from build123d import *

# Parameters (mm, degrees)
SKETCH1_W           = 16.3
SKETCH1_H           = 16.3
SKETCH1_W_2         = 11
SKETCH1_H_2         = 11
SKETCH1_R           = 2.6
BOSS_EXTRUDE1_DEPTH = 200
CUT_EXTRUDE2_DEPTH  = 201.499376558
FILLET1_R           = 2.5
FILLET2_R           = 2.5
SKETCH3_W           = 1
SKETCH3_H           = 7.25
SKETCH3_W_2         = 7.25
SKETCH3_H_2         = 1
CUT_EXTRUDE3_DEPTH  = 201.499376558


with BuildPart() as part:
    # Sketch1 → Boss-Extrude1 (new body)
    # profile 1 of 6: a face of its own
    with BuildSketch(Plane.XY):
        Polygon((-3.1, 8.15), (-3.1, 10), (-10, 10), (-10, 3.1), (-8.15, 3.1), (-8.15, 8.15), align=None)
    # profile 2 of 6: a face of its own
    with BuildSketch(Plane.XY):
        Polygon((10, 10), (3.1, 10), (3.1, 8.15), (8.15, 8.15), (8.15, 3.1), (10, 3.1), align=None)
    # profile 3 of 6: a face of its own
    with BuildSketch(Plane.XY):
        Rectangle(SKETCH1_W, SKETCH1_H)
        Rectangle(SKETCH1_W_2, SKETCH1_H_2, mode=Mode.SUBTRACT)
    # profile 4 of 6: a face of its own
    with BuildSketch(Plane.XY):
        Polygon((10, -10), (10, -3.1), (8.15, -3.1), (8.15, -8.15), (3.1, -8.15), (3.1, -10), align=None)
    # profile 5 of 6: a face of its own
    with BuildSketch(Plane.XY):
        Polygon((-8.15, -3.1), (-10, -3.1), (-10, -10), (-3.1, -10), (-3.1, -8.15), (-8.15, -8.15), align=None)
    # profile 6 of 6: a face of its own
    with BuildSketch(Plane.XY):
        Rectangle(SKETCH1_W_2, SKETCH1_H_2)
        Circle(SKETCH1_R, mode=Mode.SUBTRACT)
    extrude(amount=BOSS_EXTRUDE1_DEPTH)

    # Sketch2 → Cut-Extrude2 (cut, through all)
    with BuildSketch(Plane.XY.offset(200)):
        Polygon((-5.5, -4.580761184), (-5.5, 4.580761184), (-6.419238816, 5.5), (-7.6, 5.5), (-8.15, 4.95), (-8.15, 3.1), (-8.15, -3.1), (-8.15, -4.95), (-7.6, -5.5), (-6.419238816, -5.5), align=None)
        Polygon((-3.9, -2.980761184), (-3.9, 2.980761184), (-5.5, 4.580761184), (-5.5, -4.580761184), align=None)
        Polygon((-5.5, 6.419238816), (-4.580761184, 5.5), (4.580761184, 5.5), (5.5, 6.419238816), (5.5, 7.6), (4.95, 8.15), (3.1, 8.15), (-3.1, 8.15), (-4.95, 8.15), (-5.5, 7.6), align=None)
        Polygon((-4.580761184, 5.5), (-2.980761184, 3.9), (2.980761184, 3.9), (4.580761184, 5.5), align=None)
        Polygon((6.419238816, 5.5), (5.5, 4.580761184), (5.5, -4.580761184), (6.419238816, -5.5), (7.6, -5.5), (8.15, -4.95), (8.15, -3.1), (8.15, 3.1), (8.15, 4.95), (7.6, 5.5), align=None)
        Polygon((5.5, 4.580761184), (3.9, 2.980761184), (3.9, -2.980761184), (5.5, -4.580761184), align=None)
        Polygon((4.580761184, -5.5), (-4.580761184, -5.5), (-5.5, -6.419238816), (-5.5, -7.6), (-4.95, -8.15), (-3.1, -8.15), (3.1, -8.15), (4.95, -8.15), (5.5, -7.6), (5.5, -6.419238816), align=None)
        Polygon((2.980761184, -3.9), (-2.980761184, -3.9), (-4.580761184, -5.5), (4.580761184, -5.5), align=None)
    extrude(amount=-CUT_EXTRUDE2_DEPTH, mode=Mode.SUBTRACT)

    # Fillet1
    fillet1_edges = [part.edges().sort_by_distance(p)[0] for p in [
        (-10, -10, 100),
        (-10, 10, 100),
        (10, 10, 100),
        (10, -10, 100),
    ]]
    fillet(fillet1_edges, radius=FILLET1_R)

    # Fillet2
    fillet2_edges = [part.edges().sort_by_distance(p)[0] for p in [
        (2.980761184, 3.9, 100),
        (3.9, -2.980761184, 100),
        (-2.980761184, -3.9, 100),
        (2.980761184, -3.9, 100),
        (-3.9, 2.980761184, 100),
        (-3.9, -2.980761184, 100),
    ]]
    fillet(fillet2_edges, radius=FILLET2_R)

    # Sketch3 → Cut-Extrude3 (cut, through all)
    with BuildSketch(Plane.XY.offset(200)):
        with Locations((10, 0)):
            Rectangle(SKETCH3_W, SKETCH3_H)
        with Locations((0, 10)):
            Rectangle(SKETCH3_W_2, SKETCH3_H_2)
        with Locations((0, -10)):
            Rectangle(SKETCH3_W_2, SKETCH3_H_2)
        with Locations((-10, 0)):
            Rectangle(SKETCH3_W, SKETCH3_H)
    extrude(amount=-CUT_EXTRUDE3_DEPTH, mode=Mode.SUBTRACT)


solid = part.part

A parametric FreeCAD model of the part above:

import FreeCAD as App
import Part
import Sketcher
from FreeCAD import Vector


def edges_at(feature, points):
    """Names of the edges that pass closest to the given points."""
    edges = feature.Shape.Edges
    near = lambda p: min(range(len(edges)), key=lambda i: edges[i].distToShape(Part.Vertex(*p))[0])
    return sorted({f"Edge{near(p) + 1}" for p in points})

doc = App.newDocument("Part")
body = doc.addObject("PartDesign::Body", "Body")

# Sketch on XY plane
sketch1 = body.newObject("Sketcher::SketchObject", "Sketch")
sketch1.AttachmentSupport = (doc.getObject("XY_Plane"), [""])
sketch1.MapMode = "FlatFace"
sketch1.addGeometry([
    Part.LineSegment(Vector(-3.1, 8.2, 0), Vector(-3.1, 10, 0)),  # 0
    Part.LineSegment(Vector(-3.1, 10, 0), Vector(-10, 10, 0)),  # 1
    Part.LineSegment(Vector(-10, 10, 0), Vector(-10, 3.1, 0)),  # 2
    Part.LineSegment(Vector(-10, 3.1, 0), Vector(-8.2, 3.1, 0)),  # 3
    Part.LineSegment(Vector(-8.2, 3.1, 0), Vector(-8.2, -3.1, 0)),  # 4
    Part.LineSegment(Vector(-8.2, -3.1, 0), Vector(-10, -3.1, 0)),  # 5
    Part.LineSegment(Vector(-10, -3.1, 0), Vector(-10, -10, 0)),  # 6
    Part.LineSegment(Vector(-10, -10, 0), Vector(-3.1, -10, 0)),  # 7
    Part.LineSegment(Vector(-3.1, -10, 0), Vector(-3.1, -8.2, 0)),  # 8
    Part.LineSegment(Vector(-3.1, -8.2, 0), Vector(3.1, -8.2, 0)),  # 9
    Part.LineSegment(Vector(3.1, -8.2, 0), Vector(3.1, -10, 0)),  # 10
    Part.LineSegment(Vector(3.1, -10, 0), Vector(10, -10, 0)),  # 11
    Part.LineSegment(Vector(10, -10, 0), Vector(10, -3.1, 0)),  # 12
    Part.LineSegment(Vector(10, -3.1, 0), Vector(8.2, -3.1, 0)),  # 13
    Part.LineSegment(Vector(8.2, -3.1, 0), Vector(8.2, 3.1, 0)),  # 14
    Part.LineSegment(Vector(8.2, 3.1, 0), Vector(10, 3.1, 0)),  # 15
    Part.LineSegment(Vector(10, 3.1, 0), Vector(10, 10, 0)),  # 16
    Part.LineSegment(Vector(10, 10, 0), Vector(3.1, 10, 0)),  # 17
    Part.LineSegment(Vector(3.1, 10, 0), Vector(3.1, 8.2, 0)),  # 18
    Part.LineSegment(Vector(3.1, 8.2, 0), Vector(-3.1, 8.2, 0)),  # 19
    Part.Circle(Vector(0, 0, 0), Vector(0, 0, 1), 2.6),  # 20
], False)
sketch1.addConstraint([
    Sketcher.Constraint("Coincident", 0, 2, 1, 1),
    Sketcher.Constraint("Coincident", 1, 2, 2, 1),
    Sketcher.Constraint("Coincident", 2, 2, 3, 1),
    Sketcher.Constraint("Coincident", 3, 2, 4, 1),
    Sketcher.Constraint("Coincident", 4, 2, 5, 1),
    Sketcher.Constraint("Coincident", 5, 2, 6, 1),
    Sketcher.Constraint("Coincident", 6, 2, 7, 1),
    Sketcher.Constraint("Coincident", 7, 2, 8, 1),
    Sketcher.Constraint("Coincident", 8, 2, 9, 1),
    Sketcher.Constraint("Coincident", 9, 2, 10, 1),
    Sketcher.Constraint("Coincident", 10, 2, 11, 1),
    Sketcher.Constraint("Coincident", 11, 2, 12, 1),
    Sketcher.Constraint("Coincident", 12, 2, 13, 1),
    Sketcher.Constraint("Coincident", 13, 2, 14, 1),
    Sketcher.Constraint("Coincident", 14, 2, 15, 1),
    Sketcher.Constraint("Coincident", 15, 2, 16, 1),
    Sketcher.Constraint("Coincident", 16, 2, 17, 1),
    Sketcher.Constraint("Coincident", 17, 2, 18, 1),
    Sketcher.Constraint("Coincident", 18, 2, 19, 1),
    Sketcher.Constraint("Coincident", 19, 2, 0, 1),
    Sketcher.Constraint("Vertical", 0),
    Sketcher.Constraint("Horizontal", 1),
    Sketcher.Constraint("Vertical", 2),
    Sketcher.Constraint("Horizontal", 3),
    Sketcher.Constraint("Vertical", 4),
    Sketcher.Constraint("Horizontal", 5),
    Sketcher.Constraint("Vertical", 6),
    Sketcher.Constraint("Horizontal", 7),
    Sketcher.Constraint("Vertical", 8),
    Sketcher.Constraint("Horizontal", 9),
    Sketcher.Constraint("Vertical", 10),
    Sketcher.Constraint("Horizontal", 11),
    Sketcher.Constraint("Vertical", 12),
    Sketcher.Constraint("Horizontal", 13),
    Sketcher.Constraint("Vertical", 14),
    Sketcher.Constraint("Horizontal", 15),
    Sketcher.Constraint("Vertical", 16),
    Sketcher.Constraint("Horizontal", 17),
    Sketcher.Constraint("Vertical", 18),
    Sketcher.Constraint("Horizontal", 19),
    Sketcher.Constraint("Coincident", 20, 3, -1, 1),
    Sketcher.Constraint("Symmetric", 0, 2, 10, 2, -1, 1),
    Sketcher.Constraint("Symmetric", 2, 2, 12, 2, -1, 1),
    Sketcher.Constraint("Symmetric", 4, 2, 14, 2, -1, 1),
    Sketcher.Constraint("Symmetric", 6, 2, 16, 2, -1, 1),
    Sketcher.Constraint("Symmetric", 8, 2, 18, 2, -1, 1),
    Sketcher.Constraint("Symmetric", 7, 2, 10, 2, -2),
    Sketcher.Constraint("Symmetric", 5, 2, 12, 2, -2),
    Sketcher.Constraint("Equal", 15, 0),
    Sketcher.Constraint("Equal", 17, 2),
    Sketcher.Constraint("Equal", 19, 4),
    Sketcher.Constraint("Diameter", 20, 5.2),
    Sketcher.Constraint("DistanceX", 1, 2, 1, 1, 6.9),
    Sketcher.Constraint("DistanceX", 9, 1, 9, 2, 6.2),
    Sketcher.Constraint("DistanceX", 3, 1, 3, 2, 1.85),
])
pad1 = body.newObject("PartDesign::Pad", "Pad")
pad1.Profile = sketch1
pad1.Length = 200

# Sketch on XY plane
sketch2 = body.newObject("Sketcher::SketchObject", "Sketch001")
sketch2.AttachmentSupport = (doc.getObject("XY_Plane"), [""])
sketch2.MapMode = "FlatFace"
sketch2.AttachmentOffset = App.Placement(Vector(0, 0, 200), App.Rotation())
sketch2.addGeometry([
    Part.LineSegment(Vector(-6.4, 5.5, 0), Vector(-7.6, 5.5, 0)),  # 0
    Part.LineSegment(Vector(-7.6, 5.5, 0), Vector(-8.2, 5, 0)),  # 1
    Part.LineSegment(Vector(-8.2, 5, 0), Vector(-8.2, -5, 0)),  # 2
    Part.LineSegment(Vector(-8.2, -5, 0), Vector(-7.6, -5.5, 0)),  # 3
    Part.LineSegment(Vector(-7.6, -5.5, 0), Vector(-6.4, -5.5, 0)),  # 4
    Part.LineSegment(Vector(-6.4, -5.5, 0), Vector(-3.9, -3, 0)),  # 5
    Part.LineSegment(Vector(-3.9, -3, 0), Vector(-3.9, 3, 0)),  # 6
    Part.LineSegment(Vector(-3.9, 3, 0), Vector(-6.4, 5.5, 0)),  # 7
    Part.LineSegment(Vector(-5.5, 6.4, 0), Vector(-3, 3.9, 0)),  # 8
    Part.LineSegment(Vector(-3, 3.9, 0), Vector(3, 3.9, 0)),  # 9
    Part.LineSegment(Vector(3, 3.9, 0), Vector(5.5, 6.4, 0)),  # 10
    Part.LineSegment(Vector(5.5, 6.4, 0), Vector(5.5, 7.6, 0)),  # 11
    Part.LineSegment(Vector(5.5, 7.6, 0), Vector(5, 8.2, 0)),  # 12
    Part.LineSegment(Vector(5, 8.2, 0), Vector(-5, 8.2, 0)),  # 13
    Part.LineSegment(Vector(-5, 8.2, 0), Vector(-5.5, 7.6, 0)),  # 14
    Part.LineSegment(Vector(-5.5, 7.6, 0), Vector(-5.5, 6.4, 0)),  # 15
    Part.LineSegment(Vector(6.4, 5.5, 0), Vector(3.9, 3, 0)),  # 16
    Part.LineSegment(Vector(3.9, 3, 0), Vector(3.9, -3, 0)),  # 17
    Part.LineSegment(Vector(3.9, -3, 0), Vector(6.4, -5.5, 0)),  # 18
    Part.LineSegment(Vector(6.4, -5.5, 0), Vector(7.6, -5.5, 0)),  # 19
    Part.LineSegment(Vector(7.6, -5.5, 0), Vector(8.2, -5, 0)),  # 20
    Part.LineSegment(Vector(8.2, -5, 0), Vector(8.2, 5, 0)),  # 21
    Part.LineSegment(Vector(8.2, 5, 0), Vector(7.6, 5.5, 0)),  # 22
    Part.LineSegment(Vector(7.6, 5.5, 0), Vector(6.4, 5.5, 0)),  # 23
    Part.LineSegment(Vector(-5.5, -6.4, 0), Vector(-5.5, -7.6, 0)),  # 24
    Part.LineSegment(Vector(-5.5, -7.6, 0), Vector(-5, -8.2, 0)),  # 25
    Part.LineSegment(Vector(-5, -8.2, 0), Vector(5, -8.2, 0)),  # 26
    Part.LineSegment(Vector(5, -8.2, 0), Vector(5.5, -7.6, 0)),  # 27
    Part.LineSegment(Vector(5.5, -7.6, 0), Vector(5.5, -6.4, 0)),  # 28
    Part.LineSegment(Vector(5.5, -6.4, 0), Vector(3, -3.9, 0)),  # 29
    Part.LineSegment(Vector(3, -3.9, 0), Vector(-3, -3.9, 0)),  # 30
    Part.LineSegment(Vector(-3, -3.9, 0), Vector(-5.5, -6.4, 0)),  # 31
], False)
sketch2.addConstraint([
    Sketcher.Constraint("Coincident", 0, 2, 1, 1),
    Sketcher.Constraint("Coincident", 1, 2, 2, 1),
    Sketcher.Constraint("Coincident", 2, 2, 3, 1),
    Sketcher.Constraint("Coincident", 3, 2, 4, 1),
    Sketcher.Constraint("Coincident", 4, 2, 5, 1),
    Sketcher.Constraint("Coincident", 5, 2, 6, 1),
    Sketcher.Constraint("Coincident", 6, 2, 7, 1),
    Sketcher.Constraint("Coincident", 7, 2, 0, 1),
    Sketcher.Constraint("Coincident", 8, 2, 9, 1),
    Sketcher.Constraint("Coincident", 9, 2, 10, 1),
    Sketcher.Constraint("Coincident", 10, 2, 11, 1),
    Sketcher.Constraint("Coincident", 11, 2, 12, 1),
    Sketcher.Constraint("Coincident", 12, 2, 13, 1),
    Sketcher.Constraint("Coincident", 13, 2, 14, 1),
    Sketcher.Constraint("Coincident", 14, 2, 15, 1),
    Sketcher.Constraint("Coincident", 15, 2, 8, 1),
    Sketcher.Constraint("Coincident", 16, 2, 17, 1),
    Sketcher.Constraint("Coincident", 17, 2, 18, 1),
    Sketcher.Constraint("Coincident", 18, 2, 19, 1),
    Sketcher.Constraint("Coincident", 19, 2, 20, 1),
    Sketcher.Constraint("Coincident", 20, 2, 21, 1),
    Sketcher.Constraint("Coincident", 21, 2, 22, 1),
    Sketcher.Constraint("Coincident", 22, 2, 23, 1),
    Sketcher.Constraint("Coincident", 23, 2, 16, 1),
    Sketcher.Constraint("Coincident", 24, 2, 25, 1),
    Sketcher.Constraint("Coincident", 25, 2, 26, 1),
    Sketcher.Constraint("Coincident", 26, 2, 27, 1),
    Sketcher.Constraint("Coincident", 27, 2, 28, 1),
    Sketcher.Constraint("Coincident", 28, 2, 29, 1),
    Sketcher.Constraint("Coincident", 29, 2, 30, 1),
    Sketcher.Constraint("Coincident", 30, 2, 31, 1),
    Sketcher.Constraint("Coincident", 31, 2, 24, 1),
    Sketcher.Constraint("Horizontal", 0),
    Sketcher.Constraint("Vertical", 2),
    Sketcher.Constraint("Horizontal", 4),
    Sketcher.Constraint("Vertical", 6),
    Sketcher.Constraint("Horizontal", 9),
    Sketcher.Constraint("Vertical", 11),
    Sketcher.Constraint("Horizontal", 13),
    Sketcher.Constraint("Vertical", 15),
    Sketcher.Constraint("Vertical", 17),
    Sketcher.Constraint("Horizontal", 19),
    Sketcher.Constraint("Vertical", 21),
    Sketcher.Constraint("Horizontal", 23),
    Sketcher.Constraint("Vertical", 24),
    Sketcher.Constraint("Horizontal", 26),
    Sketcher.Constraint("Vertical", 28),
    Sketcher.Constraint("Horizontal", 30),
    Sketcher.Constraint("Symmetric", 5, 2, 16, 2, -1, 1),
    Sketcher.Constraint("Symmetric", 7, 2, 18, 2, -1, 1),
    Sketcher.Constraint("Symmetric", 1, 2, 20, 2, -1, 1),
    Sketcher.Constraint("Symmetric", 3, 2, 22, 2, -1, 1),
    Sketcher.Constraint("Symmetric", 11, 2, 24, 2, -1, 1),
    Sketcher.Constraint("Symmetric", 12, 2, 25, 2, -1, 1),
    Sketcher.Constraint("Symmetric", 14, 2, 27, 2, -1, 1),
    Sketcher.Constraint("Symmetric", 8, 2, 29, 2, -1, 1),
    Sketcher.Constraint("Symmetric", 11, 2, 14, 2, -2),
    Sketcher.Constraint("Symmetric", 4, 2, 18, 2, -2),
    Sketcher.Constraint("Perpendicular", 1, 3),
    Sketcher.Constraint("Perpendicular", 3, 5),
    Sketcher.Constraint("Perpendicular", 5, 7),
    Sketcher.Constraint("Parallel", 7, 8),
    Sketcher.Constraint("Perpendicular", 8, 10),
    Sketcher.Constraint("Perpendicular", 10, 12),
    Sketcher.Constraint("Perpendicular", 12, 14),
    Sketcher.Constraint("Parallel", 14, 16),
    Sketcher.Constraint("Perpendicular", 16, 18),
    Sketcher.Constraint("Perpendicular", 18, 20),
    Sketcher.Constraint("Perpendicular", 20, 22),
    Sketcher.Constraint("Perpendicular", 25, 27),
    Sketcher.Constraint("Perpendicular", 27, 29),
    Sketcher.Constraint("Perpendicular", 29, 31),
    Sketcher.Constraint("Horizontal", 10, 2, 15, 2),
    Sketcher.Constraint("Horizontal", 6, 2, 16, 2),
    Sketcher.Constraint("Horizontal", 2, 2, 20, 2),
    Sketcher.Constraint("Horizontal", 28, 2, 31, 2),
    Sketcher.Constraint("Equal", 26, 2),
    Sketcher.Constraint("Equal", 30, 6),
    Sketcher.Constraint("Equal", 23, 11),
    Sketcher.Constraint("Equal", 7, 8),
    Sketcher.Constraint("DistanceX", 13, 2, 13, 1, 9.9),
    Sketcher.Constraint("DistanceY", 3, 2, 0, 2, 11.0),
    Sketcher.Constraint("DistanceX", 0, 2, -1, 1, 7.6),
    Sketcher.Constraint("DistanceX", 5, 2, -1, 1, 3.9),
    Sketcher.Constraint("DistanceY", -1, 1, 8, 2, 3.9),
    Sketcher.Constraint("DistanceX", 0, 2, 0, 1, 1.180761),
])
pocket1 = body.newObject("PartDesign::Pocket", "Pocket")
pocket1.Profile = sketch2
pocket1.Type = "ThroughAll"
doc.recompute()

fillet = body.newObject("PartDesign::Fillet", "Fillet")
fillet.Base = (pocket1, edges_at(pocket1, [
    (-10, -10, 100),
    (-10, 10, 100),
    (10, 10, 100),
    (10, -10, 100),
]))
fillet.Radius = 2.5
doc.recompute()

fillet2 = body.newObject("PartDesign::Fillet", "Fillet001")
fillet2.Base = (fillet, edges_at(fillet, [
    (2.981, 3.9, 100),
    (3.9, -2.981, 100),
    (-2.981, -3.9, 100),
    (2.981, -3.9, 100),
    (-3.9, 2.981, 100),
    (-3.9, -2.981, 100),
]))
fillet2.Radius = 2.5

# Sketch on XY plane
sketch3 = body.newObject("Sketcher::SketchObject", "Sketch002")
sketch3.AttachmentSupport = (doc.getObject("XY_Plane"), [""])
sketch3.MapMode = "FlatFace"
sketch3.AttachmentOffset = App.Placement(Vector(0, 0, 200), App.Rotation())
sketch3.addGeometry([
    Part.LineSegment(Vector(9.5, 3.6, 0), Vector(9.5, -3.6, 0)),  # 0
    Part.LineSegment(Vector(9.5, -3.6, 0), Vector(10.5, -3.6, 0)),  # 1
    Part.LineSegment(Vector(10.5, -3.6, 0), Vector(10.5, 3.6, 0)),  # 2
    Part.LineSegment(Vector(10.5, 3.6, 0), Vector(9.5, 3.6, 0)),  # 3
    Part.LineSegment(Vector(-3.6, 10.5, 0), Vector(-3.6, 9.5, 0)),  # 4
    Part.LineSegment(Vector(-3.6, 9.5, 0), Vector(3.6, 9.5, 0)),  # 5
    Part.LineSegment(Vector(3.6, 9.5, 0), Vector(3.6, 10.5, 0)),  # 6
    Part.LineSegment(Vector(3.6, 10.5, 0), Vector(-3.6, 10.5, 0)),  # 7
    Part.LineSegment(Vector(-3.6, -9.5, 0), Vector(-3.6, -10.5, 0)),  # 8
    Part.LineSegment(Vector(-3.6, -10.5, 0), Vector(3.6, -10.5, 0)),  # 9
    Part.LineSegment(Vector(3.6, -10.5, 0), Vector(3.6, -9.5, 0)),  # 10
    Part.LineSegment(Vector(3.6, -9.5, 0), Vector(-3.6, -9.5, 0)),  # 11
    Part.LineSegment(Vector(-10.5, 3.6, 0), Vector(-10.5, -3.6, 0)),  # 12
    Part.LineSegment(Vector(-10.5, -3.6, 0), Vector(-9.5, -3.6, 0)),  # 13
    Part.LineSegment(Vector(-9.5, -3.6, 0), Vector(-9.5, 3.6, 0)),  # 14
    Part.LineSegment(Vector(-9.5, 3.6, 0), Vector(-10.5, 3.6, 0)),  # 15
], False)
sketch3.addConstraint([
    Sketcher.Constraint("Coincident", 0, 2, 1, 1),
    Sketcher.Constraint("Coincident", 1, 2, 2, 1),
    Sketcher.Constraint("Coincident", 2, 2, 3, 1),
    Sketcher.Constraint("Coincident", 3, 2, 0, 1),
    Sketcher.Constraint("Coincident", 4, 2, 5, 1),
    Sketcher.Constraint("Coincident", 5, 2, 6, 1),
    Sketcher.Constraint("Coincident", 6, 2, 7, 1),
    Sketcher.Constraint("Coincident", 7, 2, 4, 1),
    Sketcher.Constraint("Coincident", 8, 2, 9, 1),
    Sketcher.Constraint("Coincident", 9, 2, 10, 1),
    Sketcher.Constraint("Coincident", 10, 2, 11, 1),
    Sketcher.Constraint("Coincident", 11, 2, 8, 1),
    Sketcher.Constraint("Coincident", 12, 2, 13, 1),
    Sketcher.Constraint("Coincident", 13, 2, 14, 1),
    Sketcher.Constraint("Coincident", 14, 2, 15, 1),
    Sketcher.Constraint("Coincident", 15, 2, 12, 1),
    Sketcher.Constraint("Vertical", 0),
    Sketcher.Constraint("Horizontal", 1),
    Sketcher.Constraint("Vertical", 2),
    Sketcher.Constraint("Horizontal", 3),
    Sketcher.Constraint("Vertical", 4),
    Sketcher.Constraint("Horizontal", 5),
    Sketcher.Constraint("Vertical", 6),
    Sketcher.Constraint("Horizontal", 7),
    Sketcher.Constraint("Vertical", 8),
    Sketcher.Constraint("Horizontal", 9),
    Sketcher.Constraint("Vertical", 10),
    Sketcher.Constraint("Horizontal", 11),
    Sketcher.Constraint("Vertical", 12),
    Sketcher.Constraint("Horizontal", 13),
    Sketcher.Constraint("Vertical", 14),
    Sketcher.Constraint("Horizontal", 15),
    Sketcher.Constraint("Symmetric", 6, 2, 8, 2, -1, 1),
    Sketcher.Constraint("Symmetric", 4, 2, 10, 2, -1, 1),
    Sketcher.Constraint("Symmetric", 2, 2, 12, 2, -1, 1),
    Sketcher.Constraint("Symmetric", 0, 2, 14, 2, -1, 1),
    Sketcher.Constraint("Horizontal", 1, 2, 12, 2),
    Sketcher.Constraint("Vertical", 7, 2, 8, 2),
    Sketcher.Constraint("Equal", 11, 0),
    Sketcher.Constraint("Equal", 15, 4),
    Sketcher.Constraint("DistanceX", 1, 1, 1, 2, 1.0),
    Sketcher.Constraint("DistanceY", 8, 2, 4, 2, 20.0),
    Sketcher.Constraint("DistanceX", 5, 1, 5, 2, 7.25),
    Sketcher.Constraint("DistanceX", -1, 1, 0, 2, 9.5),
])
pocket2 = body.newObject("PartDesign::Pocket", "Pocket001")
pocket2.Profile = sketch3
pocket2.Type = "ThroughAll"

doc.recompute()
